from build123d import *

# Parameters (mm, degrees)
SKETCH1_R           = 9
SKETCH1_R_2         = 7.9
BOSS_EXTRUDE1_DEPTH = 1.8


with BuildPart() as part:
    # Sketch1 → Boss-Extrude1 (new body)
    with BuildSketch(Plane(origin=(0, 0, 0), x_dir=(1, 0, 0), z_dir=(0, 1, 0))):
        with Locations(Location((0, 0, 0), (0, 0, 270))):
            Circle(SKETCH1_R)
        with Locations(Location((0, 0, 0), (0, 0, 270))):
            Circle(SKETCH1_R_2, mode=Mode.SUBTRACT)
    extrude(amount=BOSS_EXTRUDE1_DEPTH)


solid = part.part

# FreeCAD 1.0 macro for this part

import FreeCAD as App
import Part
import Sketcher
from FreeCAD import Vector

doc = App.newDocument("Part")
body = doc.addObject("PartDesign::Body", "Body")

# Sketch on XZ plane
sketch1 = body.newObject("Sketcher::SketchObject", "Sketch")
sketch1.AttachmentSupport = (doc.getObject("XZ_Plane"), [""])
sketch1.MapMode = "FlatFace"
sketch1.addGeometry([
    Part.Circle(Vector(0, 0, 0), Vector(0, 0, 1), 9),
    Part.Circle(Vector(0, 0, 0), Vector(0, 0, 1), 8),
], False)
sketch1.addConstraint([
    Sketcher.Constraint("Coincident", 0, 3, -1, 1),
    Sketcher.Constraint("Coincident", 1, 3, -1, 1),
    Sketcher.Constraint("Diameter", 0, 18.0),
    Sketcher.Constraint("Diameter", 1, 15.8),
])
pad1 = body.newObject("PartDesign::Pad", "Pad")
pad1.Profile = sketch1
pad1.Length = 1.8
pad1.Reversed = True

doc.recompute()
